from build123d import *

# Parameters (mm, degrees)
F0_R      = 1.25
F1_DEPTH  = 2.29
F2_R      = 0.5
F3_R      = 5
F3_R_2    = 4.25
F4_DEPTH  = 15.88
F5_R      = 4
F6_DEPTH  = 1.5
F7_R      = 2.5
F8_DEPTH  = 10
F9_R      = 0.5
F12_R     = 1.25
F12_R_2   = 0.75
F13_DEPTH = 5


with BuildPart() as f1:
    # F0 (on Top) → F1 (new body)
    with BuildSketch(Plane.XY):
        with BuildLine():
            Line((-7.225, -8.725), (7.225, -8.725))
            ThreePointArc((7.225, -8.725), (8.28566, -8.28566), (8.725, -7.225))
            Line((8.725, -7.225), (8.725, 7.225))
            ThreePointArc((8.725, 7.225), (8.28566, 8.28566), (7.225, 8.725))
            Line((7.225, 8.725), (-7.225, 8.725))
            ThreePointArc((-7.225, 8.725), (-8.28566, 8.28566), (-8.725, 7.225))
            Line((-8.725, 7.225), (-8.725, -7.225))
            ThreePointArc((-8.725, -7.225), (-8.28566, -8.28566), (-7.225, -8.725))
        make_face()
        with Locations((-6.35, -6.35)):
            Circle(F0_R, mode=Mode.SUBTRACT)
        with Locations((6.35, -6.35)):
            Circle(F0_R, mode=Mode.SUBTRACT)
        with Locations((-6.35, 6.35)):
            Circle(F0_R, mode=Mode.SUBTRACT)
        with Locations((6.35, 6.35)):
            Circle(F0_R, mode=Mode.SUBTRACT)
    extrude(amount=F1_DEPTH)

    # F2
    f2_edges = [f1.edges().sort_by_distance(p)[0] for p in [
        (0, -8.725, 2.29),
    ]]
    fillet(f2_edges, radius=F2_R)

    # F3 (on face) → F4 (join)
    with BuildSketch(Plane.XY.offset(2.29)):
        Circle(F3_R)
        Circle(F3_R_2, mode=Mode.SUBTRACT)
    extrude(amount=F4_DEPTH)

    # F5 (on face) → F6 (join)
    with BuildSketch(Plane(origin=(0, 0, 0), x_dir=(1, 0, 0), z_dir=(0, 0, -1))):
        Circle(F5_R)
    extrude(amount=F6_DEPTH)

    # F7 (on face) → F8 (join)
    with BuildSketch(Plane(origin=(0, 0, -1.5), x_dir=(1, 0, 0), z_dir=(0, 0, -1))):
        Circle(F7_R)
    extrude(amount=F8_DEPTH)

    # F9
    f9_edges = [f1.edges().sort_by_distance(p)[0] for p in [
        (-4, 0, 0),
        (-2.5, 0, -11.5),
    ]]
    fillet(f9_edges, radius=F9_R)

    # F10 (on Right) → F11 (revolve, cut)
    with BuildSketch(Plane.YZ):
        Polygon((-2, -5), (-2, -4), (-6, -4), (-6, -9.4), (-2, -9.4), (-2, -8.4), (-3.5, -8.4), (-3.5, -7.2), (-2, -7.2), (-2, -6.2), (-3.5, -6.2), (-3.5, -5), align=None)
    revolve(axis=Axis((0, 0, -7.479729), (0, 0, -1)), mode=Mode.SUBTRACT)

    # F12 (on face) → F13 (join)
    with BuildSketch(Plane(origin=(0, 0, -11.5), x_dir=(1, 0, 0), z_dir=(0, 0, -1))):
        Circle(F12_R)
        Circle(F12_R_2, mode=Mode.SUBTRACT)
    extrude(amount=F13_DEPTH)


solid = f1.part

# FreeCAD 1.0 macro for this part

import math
import FreeCAD as App
import Part
import Sketcher


def edges_at(feature, points):
    """Names of the edges that pass closest to the given points."""
    edges = feature.Shape.Edges
    near = lambda p: min(range(len(edges)), key=lambda i: edges[i].distToShape(Part.Vertex(*p))[0])
    return sorted({f"Edge{near(p) + 1}" for p in points})


def add_polygon(sketch, points):
    """Adds a closed chain of lines whose ends are joined by coincident constraints."""
    first, n = sketch.GeometryCount, len(points)
    for a, b in zip(points, points[1:] + points[:1]):
        sketch.addGeometry(Part.LineSegment(App.Vector(*a, 0), App.Vector(*b, 0)), False)
    for i in range(n):
        sketch.addConstraint(Sketcher.Constraint("Coincident", first + i, 2, first + (i + 1) % n, 1))

doc = App.newDocument("Part")
body = doc.addObject("PartDesign::Body", "Body")

# Sketch on XY plane
sketch1 = body.newObject("Sketcher::SketchObject", "Sketch")
sketch1.AttachmentSupport = (doc.getObject("XY_Plane"), [""])
sketch1.MapMode = "FlatFace"
sketch1.addGeometry(Part.LineSegment(App.Vector(-7.225, -8.725, 0), App.Vector(7.225, -8.725, 0)), False)
sketch1.addGeometry(Part.ArcOfCircle(Part.Circle(App.Vector(7.224999, -7.224999, 0), App.Vector(0, 0, 1), 1.500001), math.radians(-89.999978), math.radians(-0.000022)), False)
sketch1.addGeometry(Part.LineSegment(App.Vector(8.725, -7.225, 0), App.Vector(8.725, 7.225, 0)), False)
sketch1.addGeometry(Part.ArcOfCircle(Part.Circle(App.Vector(7.224999, 7.224999, 0), App.Vector(0, 0, 1), 1.500001), math.radians(0.000022), math.radians(89.999978)), False)
sketch1.addGeometry(Part.LineSegment(App.Vector(7.225, 8.725, 0), App.Vector(-7.225, 8.725, 0)), False)
sketch1.addGeometry(Part.ArcOfCircle(Part.Circle(App.Vector(-7.224999, 7.224999, 0), App.Vector(0, 0, 1), 1.500001), math.radians(90.000022), math.radians(179.999978)), False)
sketch1.addGeometry(Part.LineSegment(App.Vector(-8.725, 7.225, 0), App.Vector(-8.725, -7.225, 0)), False)
sketch1.addGeometry(Part.ArcOfCircle(Part.Circle(App.Vector(-7.224999, -7.224999, 0), App.Vector(0, 0, 1), 1.500001), math.radians(-179.999978), math.radians(-90.000022)), False)
sketch1.addGeometry(Part.Circle(App.Vector(-6.35, -6.35, 0), App.Vector(0, 0, 1), 1.25), False)
sketch1.addGeometry(Part.Circle(App.Vector(6.35, -6.35, 0), App.Vector(0, 0, 1), 1.25), False)
sketch1.addGeometry(Part.Circle(App.Vector(-6.35, 6.35, 0), App.Vector(0, 0, 1), 1.25), False)
sketch1.addGeometry(Part.Circle(App.Vector(6.35, 6.35, 0), App.Vector(0, 0, 1), 1.25), False)
sketch1.addConstraint(Sketcher.Constraint("Tangent", 0, 2, 1, 1))
sketch1.addConstraint(Sketcher.Constraint("Tangent", 1, 2, 2, 1))
sketch1.addConstraint(Sketcher.Constraint("Tangent", 2, 2, 3, 1))
sketch1.addConstraint(Sketcher.Constraint("Tangent", 3, 2, 4, 1))
sketch1.addConstraint(Sketcher.Constraint("Tangent", 4, 2, 5, 1))
sketch1.addConstraint(Sketcher.Constraint("Tangent", 5, 2, 6, 1))
sketch1.addConstraint(Sketcher.Constraint("Tangent", 6, 2, 7, 1))
sketch1.addConstraint(Sketcher.Constraint("Tangent", 7, 2, 0, 1))
sketch1.addConstraint(Sketcher.Constraint("Horizontal", 0))
sketch1.addConstraint(Sketcher.Constraint("Vertical", 2))
sketch1.addConstraint(Sketcher.Constraint("Horizontal", 4))
sketch1.addConstraint(Sketcher.Constraint("Vertical", 6))
sketch1.addConstraint(Sketcher.Constraint("Equal", 1, 3))
sketch1.addConstraint(Sketcher.Constraint("Equal", 3, 5))
sketch1.addConstraint(Sketcher.Constraint("Equal", 5, 7))
sketch1.addConstraint(Sketcher.Constraint("Equal", 8, 9))
sketch1.addConstraint(Sketcher.Constraint("Equal", 9, 10))
sketch1.addConstraint(Sketcher.Constraint("Equal", 10, 11))
sketch1.addConstraint(Sketcher.Constraint("Symmetric", 1, 3, 5, 3, -1, 1))
sketch1.addConstraint(Sketcher.Constraint("Symmetric", 9, 3, 10, 3, -1, 1))
sketch1.addConstraint(Sketcher.Constraint("Symmetric", 8, 3, 11, 3, -1, 1))
sketch1.addConstraint(Sketcher.Constraint("Symmetric", 8, 3, 9, 3, -2))
sketch1.addConstraint(Sketcher.Constraint("Equal", 4, 2))
sketch1.addConstraint(Sketcher.Constraint("Diameter", 8, 2.5))
sketch1.addConstraint(Sketcher.Constraint("Radius", 1, 1.500001))
sketch1.addConstraint(Sketcher.Constraint("DistanceX", 0, 1, 0, 2, 14.45))
sketch1.addConstraint(Sketcher.Constraint("DistanceX", 8, 3, 9, 3, 12.7))
sketch1.addConstraint(Sketcher.Constraint("DistanceY", 8, 3, 10, 3, 12.7))
pad1 = body.newObject("PartDesign::Pad", "Pad")
pad1.Profile = sketch1
pad1.Length = 2.29
doc.recompute()

fillet = body.newObject("PartDesign::Fillet", "Fillet")
fillet.Base = (pad1, edges_at(pad1, [(0, -8.725, 2.29)]))
fillet.Radius = 0.5

# Sketch on XY plane
sketch2 = body.newObject("Sketcher::SketchObject", "Sketch001")
sketch2.AttachmentSupport = (doc.getObject("XY_Plane"), [""])
sketch2.MapMode = "FlatFace"
sketch2.AttachmentOffset = App.Placement(App.Vector(0, 0, 2.29), App.Rotation())
sketch2.addGeometry(Part.Circle(App.Vector(0, 0, 0), App.Vector(0, 0, 1), 5), False)
sketch2.addGeometry(Part.Circle(App.Vector(0, 0, 0), App.Vector(0, 0, 1), 4.25), False)
sketch2.addConstraint(Sketcher.Constraint("Coincident", 0, 3, -1, 1))
sketch2.addConstraint(Sketcher.Constraint("Coincident", 1, 3, -1, 1))
sketch2.addConstraint(Sketcher.Constraint("Diameter", 0, 10.0))
sketch2.addConstraint(Sketcher.Constraint("Diameter", 1, 8.5))
pad2 = body.newObject("PartDesign::Pad", "Pad001")
pad2.Profile = sketch2
pad2.Length = 15.88

# Sketch on XY plane
sketch3 = body.newObject("Sketcher::SketchObject", "Sketch002")
sketch3.AttachmentSupport = (doc.getObject("XY_Plane"), [""])
sketch3.MapMode = "FlatFace"
sketch3.addGeometry(Part.Circle(App.Vector(0, 0, 0), App.Vector(0, 0, 1), 4), False)
sketch3.addConstraint(Sketcher.Constraint("Coincident", 0, 3, -1, 1))
sketch3.addConstraint(Sketcher.Constraint("Diameter", 0, 8.0))
pad3 = body.newObject("PartDesign::Pad", "Pad002")
pad3.Profile = sketch3
pad3.Length = 1.5
pad3.Reversed = True

# Sketch on XY plane
sketch4 = body.newObject("Sketcher::SketchObject", "Sketch003")
sketch4.AttachmentSupport = (doc.getObject("XY_Plane"), [""])
sketch4.MapMode = "FlatFace"
sketch4.AttachmentOffset = App.Placement(App.Vector(0, 0, -1.5), App.Rotation())
sketch4.addGeometry(Part.Circle(App.Vector(0, 0, 0), App.Vector(0, 0, 1), 2.5), False)
sketch4.addConstraint(Sketcher.Constraint("Coincident", 0, 3, -1, 1))
sketch4.addConstraint(Sketcher.Constraint("Diameter", 0, 5.0))
pad4 = body.newObject("PartDesign::Pad", "Pad003")
pad4.Profile = sketch4
pad4.Length = 10
pad4.Reversed = True
doc.recompute()

fillet2 = body.newObject("PartDesign::Fillet", "Fillet001")
fillet2.Base = (pad4, edges_at(pad4, [(-4, 0, 0), (-2.5, 0, -11.5)]))
fillet2.Radius = 0.5

# Sketch on YZ plane
sketch5 = body.newObject("Sketcher::SketchObject", "Sketch004")
sketch5.AttachmentSupport = (doc.getObject("YZ_Plane"), [""])
sketch5.MapMode = "FlatFace"
add_polygon(sketch5, [(-2, -5), (-2, -4), (-6, -4), (-6, -9.4), (-2, -9.4), (-2, -8.4), (-3.5, -8.4), (-3.5, -7.2), (-2, -7.2), (-2, -6.2), (-3.5, -6.2), (-3.5, -5)])  # lines 0-11
sketch5.addConstraint(Sketcher.Constraint("Vertical", 0))
sketch5.addConstraint(Sketcher.Constraint("Horizontal", 1))
sketch5.addConstraint(Sketcher.Constraint("Vertical", 2))
sketch5.addConstraint(Sketcher.Constraint("Horizontal", 3))
sketch5.addConstraint(Sketcher.Constraint("Vertical", 4))
sketch5.addConstraint(Sketcher.Constraint("Horizontal", 5))
sketch5.addConstraint(Sketcher.Constraint("Vertical", 6))
sketch5.addConstraint(Sketcher.Constraint("Horizontal", 7))
sketch5.addConstraint(Sketcher.Constraint("Vertical", 8))
sketch5.addConstraint(Sketcher.Constraint("Horizontal", 9))
sketch5.addConstraint(Sketcher.Constraint("Vertical", 10))
sketch5.addConstraint(Sketcher.Constraint("Horizontal", 11))
sketch5.addConstraint(Sketcher.Constraint("Vertical", 0, 2, 3, 2))
sketch5.addConstraint(Sketcher.Constraint("Vertical", 4, 2, 7, 2))
sketch5.addConstraint(Sketcher.Constraint("Vertical", 6, 2, 9, 2))
sketch5.addConstraint(Sketcher.Constraint("Equal", 0, 4))
sketch5.addConstraint(Sketcher.Constraint("Equal", 4, 8))
sketch5.addConstraint(Sketcher.Constraint("Equal", 6, 10))
sketch5.addConstraint(Sketcher.Constraint("DistanceX", 1, 2, 1, 1, 4.0))
sketch5.addConstraint(Sketcher.Constraint("DistanceY", 0, 1, 0, 2, 1.0))
sketch5.addConstraint(Sketcher.Constraint("DistanceX", 5, 2, 5, 1, 1.5))
sketch5.addConstraint(Sketcher.Constraint("DistanceY", 2, 2, 2, 1, 5.4))
sketch5.addConstraint(Sketcher.Constraint("DistanceX", 0, 2, -1, 1, 2.0))
sketch5.addConstraint(Sketcher.Constraint("DistanceY", 0, 2, -1, 1, 4.0))
groove = body.newObject("PartDesign::Groove", "Groove")
groove.Profile = sketch5
groove.ReferenceAxis = (sketch5, ["V_Axis"])
groove.Angle = 360

# Sketch on XY plane
sketch6 = body.newObject("Sketcher::SketchObject", "Sketch005")
sketch6.AttachmentSupport = (doc.getObject("XY_Plane"), [""])
sketch6.MapMode = "FlatFace"
sketch6.AttachmentOffset = App.Placement(App.Vector(0, 0, -11.5), App.Rotation())
sketch6.addGeometry(Part.Circle(App.Vector(0, 0, 0), App.Vector(0, 0, 1), 1.25), False)
sketch6.addGeometry(Part.Circle(App.Vector(0, 0, 0), App.Vector(0, 0, 1), 0.75), False)
sketch6.addConstraint(Sketcher.Constraint("Coincident", 0, 3, -1, 1))
sketch6.addConstraint(Sketcher.Constraint("Coincident", 1, 3, -1, 1))
sketch6.addConstraint(Sketcher.Constraint("Diameter", 0, 2.5))
sketch6.addConstraint(Sketcher.Constraint("Diameter", 1, 1.5))
pad5 = body.newObject("PartDesign::Pad", "Pad004")
pad5.Profile = sketch6
pad5.Length = 5
pad5.Reversed = True

doc.recompute()
